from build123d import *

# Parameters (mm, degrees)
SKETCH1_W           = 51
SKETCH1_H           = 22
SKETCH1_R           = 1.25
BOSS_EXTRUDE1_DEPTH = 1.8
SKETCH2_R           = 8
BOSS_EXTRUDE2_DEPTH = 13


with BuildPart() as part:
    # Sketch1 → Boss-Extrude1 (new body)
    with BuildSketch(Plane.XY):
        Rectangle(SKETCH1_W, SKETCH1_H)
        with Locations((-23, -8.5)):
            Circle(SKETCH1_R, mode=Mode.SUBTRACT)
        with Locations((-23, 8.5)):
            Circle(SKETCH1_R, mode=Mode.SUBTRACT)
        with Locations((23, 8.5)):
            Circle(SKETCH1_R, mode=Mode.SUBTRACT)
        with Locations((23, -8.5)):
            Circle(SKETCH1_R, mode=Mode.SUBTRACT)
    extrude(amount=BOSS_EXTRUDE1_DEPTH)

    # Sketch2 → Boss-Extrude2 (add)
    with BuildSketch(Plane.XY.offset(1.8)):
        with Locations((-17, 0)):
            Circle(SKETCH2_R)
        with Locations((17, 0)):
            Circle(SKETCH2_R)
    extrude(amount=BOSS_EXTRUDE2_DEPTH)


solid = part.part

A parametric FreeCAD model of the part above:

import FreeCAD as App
import Part
import Sketcher
Q = App.Units.Quantity


def add_polygon(sketch, points):
    """Adds a closed chain of lines whose ends are joined by coincident constraints."""
    first, n = sketch.GeometryCount, len(points)
    for a, b in zip(points, points[1:] + points[:1]):
        sketch.addGeometry(Part.LineSegment(App.Vector(*a, 0), App.Vector(*b, 0)), False)
    for i in range(n):
        sketch.addConstraint(Sketcher.Constraint("Coincident", first + i, 2, first + (i + 1) % n, 1))

doc = App.newDocument("Part")
body = doc.addObject("PartDesign::Body", "Body")

# Sketch on XY plane
sketch1 = body.newObject("Sketcher::SketchObject", "Sketch")
sketch1.AttachmentSupport = (doc.getObject("XY_Plane"), [""])
sketch1.MapMode = "FlatFace"
add_polygon(sketch1, [(-25.5, 11), (-25.5, -11), (25.5, -11), (25.5, 11)])  # lines 0-3
sketch1.addGeometry(Part.Circle(App.Vector(-23, -8.5, 0), App.Vector(0, 0, 1), 1.25), False)  # 4
sketch1.addGeometry(Part.Circle(App.Vector(23, -8.5, 0), App.Vector(0, 0, 1), 1.25), False)  # 5
sketch1.addGeometry(Part.Circle(App.Vector(-23, 8.5, 0), App.Vector(0, 0, 1), 1.25), False)  # 6
sketch1.addGeometry(Part.Circle(App.Vector(23, 8.5, 0), App.Vector(0, 0, 1), 1.25), False)  # 7
sketch1.addConstraint(Sketcher.Constraint("Vertical", 0))
sketch1.addConstraint(Sketcher.Constraint("Horizontal", 1))
sketch1.addConstraint(Sketcher.Constraint("Vertical", 2))
sketch1.addConstraint(Sketcher.Constraint("Horizontal", 3))
sketch1.addConstraint(Sketcher.Constraint("Equal", 4, 5))
sketch1.addConstraint(Sketcher.Constraint("Equal", 5, 6))
sketch1.addConstraint(Sketcher.Constraint("Equal", 6, 7))
sketch1.addConstraint(Sketcher.Constraint("Symmetric", 5, 3, 6, 3, -1, 1))
sketch1.addConstraint(Sketcher.Constraint("Symmetric", 4, 3, 7, 3, -1, 1))
sketch1.addConstraint(Sketcher.Constraint("Symmetric", 0, 2, 2, 2, -1, 1))
sketch1.addConstraint(Sketcher.Constraint("Symmetric", 4, 3, 5, 3, -2))
sketch1.addConstraint(Sketcher.Constraint("Diameter", 4, Q("2.5 mm")))
sketch1.addConstraint(Sketcher.Constraint("DistanceX", 1, 1, 1, 2, Q("51 mm")))
sketch1.addConstraint(Sketcher.Constraint("DistanceY", 0, 2, 0, 1, Q("22 mm")))
sketch1.addConstraint(Sketcher.Constraint("DistanceX", 4, 3, -1, 1, Q("23 mm")))
sketch1.addConstraint(Sketcher.Constraint("DistanceY", 4, 3, 6, 3, Q("17 mm")))
pad1 = body.newObject("PartDesign::Pad", "Pad")
pad1.Profile = sketch1
pad1.Length = 1.8

# Sketch on XY plane
sketch2 = body.newObject("Sketcher::SketchObject", "Sketch001")
sketch2.AttachmentSupport = (doc.getObject("XY_Plane"), [""])
sketch2.MapMode = "FlatFace"
sketch2.AttachmentOffset = App.Placement(App.Vector(0, 0, 1.8), App.Rotation())
sketch2.addGeometry(Part.Circle(App.Vector(-17, 0, 0), App.Vector(0, 0, 1), 8), False)
sketch2.addGeometry(Part.Circle(App.Vector(17, 0, 0), App.Vector(0, 0, 1), 8), False)
sketch2.addConstraint(Sketcher.Constraint("Equal", 0, 1))
sketch2.addConstraint(Sketcher.Constraint("Symmetric", 0, 3, 1, 3, -1, 1))
sketch2.addConstraint(Sketcher.Constraint("PointOnObject", 0, 3, -1))
sketch2.addConstraint(Sketcher.Constraint("Diameter", 0, Q("16 mm")))
sketch2.addConstraint(Sketcher.Constraint("DistanceX", 0, 3, -1, 1, Q("17 mm")))
pad2 = body.newObject("PartDesign::Pad", "Pad001")
pad2.Profile = sketch2
pad2.Length = 13

doc.recompute()
